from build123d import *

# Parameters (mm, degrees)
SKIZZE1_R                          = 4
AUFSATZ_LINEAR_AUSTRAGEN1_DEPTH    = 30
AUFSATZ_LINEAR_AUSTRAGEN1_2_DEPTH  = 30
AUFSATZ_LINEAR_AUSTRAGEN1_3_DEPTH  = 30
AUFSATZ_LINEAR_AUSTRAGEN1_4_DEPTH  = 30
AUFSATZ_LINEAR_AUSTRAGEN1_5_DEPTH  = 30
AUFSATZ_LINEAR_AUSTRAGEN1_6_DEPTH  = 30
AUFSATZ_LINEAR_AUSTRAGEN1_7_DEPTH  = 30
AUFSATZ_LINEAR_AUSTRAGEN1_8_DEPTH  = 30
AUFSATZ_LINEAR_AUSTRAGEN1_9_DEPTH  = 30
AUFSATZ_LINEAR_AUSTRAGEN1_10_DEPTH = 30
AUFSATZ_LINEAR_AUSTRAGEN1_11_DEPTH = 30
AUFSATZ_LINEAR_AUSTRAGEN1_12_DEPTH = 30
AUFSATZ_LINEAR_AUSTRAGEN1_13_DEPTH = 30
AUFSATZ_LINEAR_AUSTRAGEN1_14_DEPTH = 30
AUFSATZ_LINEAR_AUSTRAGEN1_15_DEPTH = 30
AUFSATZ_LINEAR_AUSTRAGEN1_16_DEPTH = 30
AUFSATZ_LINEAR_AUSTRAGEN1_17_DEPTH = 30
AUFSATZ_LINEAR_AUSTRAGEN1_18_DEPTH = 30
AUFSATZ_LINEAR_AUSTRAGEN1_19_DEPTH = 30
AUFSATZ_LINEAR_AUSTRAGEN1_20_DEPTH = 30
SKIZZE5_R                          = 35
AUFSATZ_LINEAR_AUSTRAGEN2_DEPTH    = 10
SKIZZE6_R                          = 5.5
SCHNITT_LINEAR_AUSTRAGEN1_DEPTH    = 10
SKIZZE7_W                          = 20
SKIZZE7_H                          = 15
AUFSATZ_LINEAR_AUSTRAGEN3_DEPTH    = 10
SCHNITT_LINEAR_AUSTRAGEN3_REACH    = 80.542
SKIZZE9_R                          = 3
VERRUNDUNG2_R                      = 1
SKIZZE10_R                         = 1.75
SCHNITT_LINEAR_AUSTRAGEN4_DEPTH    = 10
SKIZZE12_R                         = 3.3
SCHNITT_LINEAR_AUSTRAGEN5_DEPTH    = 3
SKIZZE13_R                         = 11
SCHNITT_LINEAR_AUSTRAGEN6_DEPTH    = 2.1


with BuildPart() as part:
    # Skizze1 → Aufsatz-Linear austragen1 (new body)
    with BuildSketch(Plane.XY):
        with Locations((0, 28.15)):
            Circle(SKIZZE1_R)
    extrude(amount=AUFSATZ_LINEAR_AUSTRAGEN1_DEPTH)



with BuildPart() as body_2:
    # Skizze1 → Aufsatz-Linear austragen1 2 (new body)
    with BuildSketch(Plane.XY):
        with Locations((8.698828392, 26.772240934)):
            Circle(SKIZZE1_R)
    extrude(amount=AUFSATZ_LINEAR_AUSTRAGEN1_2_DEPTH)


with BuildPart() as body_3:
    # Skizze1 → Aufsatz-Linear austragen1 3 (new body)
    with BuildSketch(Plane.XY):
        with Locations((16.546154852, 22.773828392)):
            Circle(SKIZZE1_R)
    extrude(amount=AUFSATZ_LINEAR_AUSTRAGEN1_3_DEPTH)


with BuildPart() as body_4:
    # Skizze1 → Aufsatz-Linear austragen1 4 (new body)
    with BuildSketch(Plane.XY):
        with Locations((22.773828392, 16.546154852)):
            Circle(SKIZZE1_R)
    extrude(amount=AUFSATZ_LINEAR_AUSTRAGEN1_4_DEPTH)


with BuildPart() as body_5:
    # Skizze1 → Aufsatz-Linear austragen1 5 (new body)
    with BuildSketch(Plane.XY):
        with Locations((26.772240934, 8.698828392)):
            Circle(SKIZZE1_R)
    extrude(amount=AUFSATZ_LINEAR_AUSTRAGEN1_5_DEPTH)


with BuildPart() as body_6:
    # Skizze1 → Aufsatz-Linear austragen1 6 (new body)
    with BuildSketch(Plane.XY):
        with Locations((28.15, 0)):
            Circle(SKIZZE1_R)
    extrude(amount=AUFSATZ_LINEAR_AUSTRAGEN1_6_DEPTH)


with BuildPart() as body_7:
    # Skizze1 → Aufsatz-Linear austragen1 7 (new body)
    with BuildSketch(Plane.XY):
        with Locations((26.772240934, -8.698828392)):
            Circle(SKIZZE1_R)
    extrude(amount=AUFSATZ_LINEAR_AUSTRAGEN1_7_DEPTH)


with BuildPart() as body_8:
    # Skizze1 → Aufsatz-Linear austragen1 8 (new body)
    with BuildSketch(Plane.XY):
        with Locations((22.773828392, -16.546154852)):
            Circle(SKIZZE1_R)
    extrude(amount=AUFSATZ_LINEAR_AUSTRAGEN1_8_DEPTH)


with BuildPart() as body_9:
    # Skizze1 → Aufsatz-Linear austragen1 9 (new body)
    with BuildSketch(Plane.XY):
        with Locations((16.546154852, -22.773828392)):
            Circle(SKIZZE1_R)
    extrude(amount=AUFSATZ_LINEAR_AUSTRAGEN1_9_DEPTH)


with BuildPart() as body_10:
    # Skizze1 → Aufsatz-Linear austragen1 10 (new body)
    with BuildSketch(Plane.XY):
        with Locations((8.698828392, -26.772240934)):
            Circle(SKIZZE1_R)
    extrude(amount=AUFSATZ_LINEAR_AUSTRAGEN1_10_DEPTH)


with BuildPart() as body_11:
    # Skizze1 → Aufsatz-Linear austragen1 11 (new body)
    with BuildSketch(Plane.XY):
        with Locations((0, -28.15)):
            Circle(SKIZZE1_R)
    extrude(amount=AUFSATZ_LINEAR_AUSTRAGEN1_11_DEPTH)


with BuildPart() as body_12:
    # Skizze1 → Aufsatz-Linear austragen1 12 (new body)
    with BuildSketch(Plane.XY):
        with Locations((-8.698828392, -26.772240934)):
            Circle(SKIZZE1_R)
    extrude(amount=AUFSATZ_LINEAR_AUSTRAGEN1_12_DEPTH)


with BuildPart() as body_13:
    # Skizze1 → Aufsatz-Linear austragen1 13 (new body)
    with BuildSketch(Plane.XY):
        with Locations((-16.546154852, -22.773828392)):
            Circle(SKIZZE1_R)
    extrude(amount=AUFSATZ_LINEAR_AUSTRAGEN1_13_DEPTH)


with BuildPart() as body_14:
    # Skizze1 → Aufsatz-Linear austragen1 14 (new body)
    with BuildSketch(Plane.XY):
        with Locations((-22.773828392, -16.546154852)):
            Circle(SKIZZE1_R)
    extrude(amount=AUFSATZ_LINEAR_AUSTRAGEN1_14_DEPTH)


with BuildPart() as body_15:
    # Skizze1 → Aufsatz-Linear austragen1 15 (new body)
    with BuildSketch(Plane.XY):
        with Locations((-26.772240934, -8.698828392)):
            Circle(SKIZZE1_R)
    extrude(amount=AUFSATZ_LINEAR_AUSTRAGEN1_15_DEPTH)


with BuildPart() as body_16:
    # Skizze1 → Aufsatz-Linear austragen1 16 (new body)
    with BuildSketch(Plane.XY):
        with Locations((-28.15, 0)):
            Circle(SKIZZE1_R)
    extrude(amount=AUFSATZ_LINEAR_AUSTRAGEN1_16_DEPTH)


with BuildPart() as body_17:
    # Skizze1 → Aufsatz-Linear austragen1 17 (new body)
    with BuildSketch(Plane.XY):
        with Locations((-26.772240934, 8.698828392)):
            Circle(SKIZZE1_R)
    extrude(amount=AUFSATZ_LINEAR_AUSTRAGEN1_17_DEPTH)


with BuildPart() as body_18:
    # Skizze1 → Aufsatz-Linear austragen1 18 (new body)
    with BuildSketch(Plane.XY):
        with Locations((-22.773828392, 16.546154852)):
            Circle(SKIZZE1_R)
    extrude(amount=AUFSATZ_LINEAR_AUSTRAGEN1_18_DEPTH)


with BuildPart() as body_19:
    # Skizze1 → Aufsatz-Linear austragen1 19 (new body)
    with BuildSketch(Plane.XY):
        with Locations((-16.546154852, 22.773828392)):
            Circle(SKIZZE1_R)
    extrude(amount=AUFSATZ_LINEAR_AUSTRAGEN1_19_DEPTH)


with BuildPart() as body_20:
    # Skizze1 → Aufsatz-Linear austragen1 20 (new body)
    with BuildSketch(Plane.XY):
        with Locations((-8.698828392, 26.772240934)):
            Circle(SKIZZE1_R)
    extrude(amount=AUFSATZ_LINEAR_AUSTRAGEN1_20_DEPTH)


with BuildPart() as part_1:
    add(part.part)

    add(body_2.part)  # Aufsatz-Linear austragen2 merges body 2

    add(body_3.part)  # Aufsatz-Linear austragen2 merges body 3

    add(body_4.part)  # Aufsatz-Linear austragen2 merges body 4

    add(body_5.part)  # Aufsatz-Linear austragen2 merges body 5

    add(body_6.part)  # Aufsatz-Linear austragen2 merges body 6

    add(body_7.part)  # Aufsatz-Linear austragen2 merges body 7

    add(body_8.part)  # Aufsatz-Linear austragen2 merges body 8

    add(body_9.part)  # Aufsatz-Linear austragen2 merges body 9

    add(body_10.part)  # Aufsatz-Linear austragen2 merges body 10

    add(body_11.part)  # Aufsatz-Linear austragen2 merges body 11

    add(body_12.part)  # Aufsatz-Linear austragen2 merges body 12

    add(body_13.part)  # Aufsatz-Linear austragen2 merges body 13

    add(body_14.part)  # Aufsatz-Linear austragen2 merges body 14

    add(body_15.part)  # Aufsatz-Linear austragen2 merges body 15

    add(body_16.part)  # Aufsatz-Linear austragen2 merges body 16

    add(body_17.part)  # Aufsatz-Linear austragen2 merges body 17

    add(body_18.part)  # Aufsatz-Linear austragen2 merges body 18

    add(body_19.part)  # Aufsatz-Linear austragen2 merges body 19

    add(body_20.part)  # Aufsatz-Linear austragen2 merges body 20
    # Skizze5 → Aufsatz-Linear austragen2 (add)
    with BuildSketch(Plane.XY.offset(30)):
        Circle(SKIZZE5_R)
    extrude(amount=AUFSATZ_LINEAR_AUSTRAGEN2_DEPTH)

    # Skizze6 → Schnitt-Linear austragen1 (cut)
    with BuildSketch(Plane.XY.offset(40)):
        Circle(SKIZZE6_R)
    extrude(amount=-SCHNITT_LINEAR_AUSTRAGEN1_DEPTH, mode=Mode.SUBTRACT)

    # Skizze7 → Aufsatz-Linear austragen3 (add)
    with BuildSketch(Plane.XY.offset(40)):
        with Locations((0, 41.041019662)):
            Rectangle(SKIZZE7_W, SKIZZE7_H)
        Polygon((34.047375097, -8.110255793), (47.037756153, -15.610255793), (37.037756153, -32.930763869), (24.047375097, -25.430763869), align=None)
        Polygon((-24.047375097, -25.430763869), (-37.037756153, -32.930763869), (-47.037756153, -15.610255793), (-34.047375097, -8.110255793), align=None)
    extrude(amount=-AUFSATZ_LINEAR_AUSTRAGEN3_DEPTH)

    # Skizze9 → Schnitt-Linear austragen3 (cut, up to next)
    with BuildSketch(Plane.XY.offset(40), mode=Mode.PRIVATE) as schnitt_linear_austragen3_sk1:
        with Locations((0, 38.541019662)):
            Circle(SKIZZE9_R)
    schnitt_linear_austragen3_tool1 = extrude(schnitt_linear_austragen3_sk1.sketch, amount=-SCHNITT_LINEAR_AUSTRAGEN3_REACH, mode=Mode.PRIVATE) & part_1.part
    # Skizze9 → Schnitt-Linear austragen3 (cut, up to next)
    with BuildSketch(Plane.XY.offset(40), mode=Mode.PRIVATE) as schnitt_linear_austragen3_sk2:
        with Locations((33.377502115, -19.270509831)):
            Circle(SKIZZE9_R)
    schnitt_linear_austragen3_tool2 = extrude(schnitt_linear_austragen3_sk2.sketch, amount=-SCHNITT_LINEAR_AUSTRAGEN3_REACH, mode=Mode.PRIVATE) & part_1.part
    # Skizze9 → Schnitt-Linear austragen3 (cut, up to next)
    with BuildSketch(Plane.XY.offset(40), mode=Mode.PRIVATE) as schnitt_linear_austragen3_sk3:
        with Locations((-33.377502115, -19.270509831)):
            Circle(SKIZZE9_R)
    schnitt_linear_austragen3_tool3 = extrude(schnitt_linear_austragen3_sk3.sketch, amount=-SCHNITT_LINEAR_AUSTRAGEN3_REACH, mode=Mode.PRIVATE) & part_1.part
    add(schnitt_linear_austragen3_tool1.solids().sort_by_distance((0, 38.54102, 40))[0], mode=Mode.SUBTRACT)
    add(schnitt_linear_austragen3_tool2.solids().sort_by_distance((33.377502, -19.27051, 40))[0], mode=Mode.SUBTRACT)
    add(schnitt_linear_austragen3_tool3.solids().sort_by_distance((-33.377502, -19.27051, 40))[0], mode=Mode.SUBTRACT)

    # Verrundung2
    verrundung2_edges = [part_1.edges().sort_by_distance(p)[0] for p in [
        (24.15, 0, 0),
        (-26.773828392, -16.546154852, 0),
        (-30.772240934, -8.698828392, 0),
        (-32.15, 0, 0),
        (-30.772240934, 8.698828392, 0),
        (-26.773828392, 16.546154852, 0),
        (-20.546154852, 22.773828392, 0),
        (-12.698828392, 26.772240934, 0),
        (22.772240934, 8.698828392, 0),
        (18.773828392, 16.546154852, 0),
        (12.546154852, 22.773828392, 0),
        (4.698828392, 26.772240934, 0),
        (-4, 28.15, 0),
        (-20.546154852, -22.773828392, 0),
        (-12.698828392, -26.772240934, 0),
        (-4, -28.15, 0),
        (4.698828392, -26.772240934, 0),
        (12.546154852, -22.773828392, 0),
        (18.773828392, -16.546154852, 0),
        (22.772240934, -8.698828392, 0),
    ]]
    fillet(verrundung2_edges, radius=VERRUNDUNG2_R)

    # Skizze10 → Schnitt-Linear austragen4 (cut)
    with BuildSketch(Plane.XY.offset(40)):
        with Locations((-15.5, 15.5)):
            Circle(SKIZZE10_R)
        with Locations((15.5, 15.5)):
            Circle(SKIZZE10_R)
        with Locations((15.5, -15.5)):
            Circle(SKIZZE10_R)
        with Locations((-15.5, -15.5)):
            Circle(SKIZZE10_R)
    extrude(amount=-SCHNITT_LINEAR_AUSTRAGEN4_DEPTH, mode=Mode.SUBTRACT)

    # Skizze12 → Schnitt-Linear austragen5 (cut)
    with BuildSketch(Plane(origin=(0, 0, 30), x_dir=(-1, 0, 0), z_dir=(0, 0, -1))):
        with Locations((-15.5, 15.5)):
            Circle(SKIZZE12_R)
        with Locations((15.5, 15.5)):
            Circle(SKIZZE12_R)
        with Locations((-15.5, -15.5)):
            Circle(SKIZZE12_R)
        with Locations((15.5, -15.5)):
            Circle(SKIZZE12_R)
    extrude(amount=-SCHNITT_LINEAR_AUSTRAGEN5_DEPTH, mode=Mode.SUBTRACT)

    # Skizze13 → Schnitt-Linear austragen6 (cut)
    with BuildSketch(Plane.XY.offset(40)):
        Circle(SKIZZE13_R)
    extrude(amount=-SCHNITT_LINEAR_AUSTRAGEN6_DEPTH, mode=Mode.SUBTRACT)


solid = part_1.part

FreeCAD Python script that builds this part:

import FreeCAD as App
import Part
import Sketcher

V = App.Vector
Q = App.Units.Quantity


def edges_at(feature, points):
    """Names of the edges that pass closest to the given points."""
    edges = feature.Shape.Edges
    near = lambda p: min(range(len(edges)), key=lambda i: edges[i].distToShape(Part.Vertex(*p))[0])
    return sorted({f"Edge{near(p) + 1}" for p in points})

doc = App.newDocument("Part")
params = doc.addObject("Spreadsheet::Sheet", "Params")
for row, (alias, value) in enumerate([
    ("sketch1_diameter", "8 mm"),
    ("pad1_length", "30 mm"),
    ("sketch2_diameter", "8 mm"),
    ("pad2_length", "30 mm"),
    ("sketch3_diameter", "8 mm"),
    ("pad3_length", "30 mm"),
    ("sketch4_diameter", "8 mm"),
    ("pad4_length", "30 mm"),
    ("sketch5_diameter", "8 mm"),
    ("pad5_length", "30 mm"),
    ("sketch6_diameter", "8 mm"),
    ("pad6_length", "30 mm"),
    ("sketch7_diameter", "8 mm"),
    ("pad7_length", "30 mm"),
    ("sketch8_diameter", "8 mm"),
    ("pad8_length", "30 mm"),
    ("sketch9_diameter", "8 mm"),
    ("pad9_length", "30 mm"),
    ("sketch10_diameter", "8 mm"),
    ("pad10_length", "30 mm"),
    ("sketch11_diameter", "8 mm"),
    ("pad11_length", "30 mm"),
    ("sketch12_diameter", "8 mm"),
    ("pad12_length", "30 mm"),
    ("sketch13_diameter", "8 mm"),
    ("pad13_length", "30 mm"),
    ("sketch14_diameter", "8 mm"),
    ("pad14_length", "30 mm"),
    ("sketch15_diameter", "8 mm"),
    ("pad15_length", "30 mm"),
    ("sketch16_diameter", "8 mm"),
    ("pad16_length", "30 mm"),
    ("sketch17_diameter", "8 mm"),
    ("pad17_length", "30 mm"),
    ("sketch18_diameter", "8 mm"),
    ("pad18_length", "30 mm"),
    ("sketch19_diameter", "8 mm"),
    ("pad19_length", "30 mm"),
    ("sketch20_diameter", "8 mm"),
    ("pad20_length", "30 mm"),
    ("sketch21_diameter", "70 mm"),
    ("pad21_length", "10 mm"),
    ("sketch22_diameter", "11 mm"),
    ("pocket1_length", "10 mm"),
    ("sketch23_width", "20 mm"),
    ("sketch23_height", "15 mm"),
    ("sketch23_length", "15 mm"),
    ("sketch23_length2", "20 mm"),
    ("pad22_length", "10 mm"),
    ("sketch24_diameter", "6 mm"),
    ("sketch25_diameter", "6 mm"),
    ("sketch26_diameter", "6 mm"),
    ("fillet_radius", "1 mm"),
    ("sketch27_diameter", "3.5 mm"),
    ("pocket5_length", "10 mm"),
    ("sketch28_diameter", "6.6 mm"),
    ("pocket6_length", "3 mm"),
    ("sketch29_diameter", "22 mm"),
    ("pocket7_length", "2.1 mm"),
], start=1):
    params.set(f"A{row}", alias)
    params.set(f"B{row}", "=" + value)
    params.setAlias(f"B{row}", alias)

body = doc.addObject("PartDesign::Body", "Body")

sketch1 = doc.addObject("Sketcher::SketchObject", "Sketch")
body.addObject(sketch1)
sketch1.AttachmentSupport = (doc.XY_Plane, [""])
sketch1.MapMode = "FlatFace"
sketch1.addGeometry(Part.Circle(V(0, 28.1, 0), V(0, 0, 1), 4), False)
sketch1.addConstraint([
    Sketcher.Constraint("PointOnObject", 0, 3, -2),
    Sketcher.Constraint("Diameter", 0, Q("8 mm")),
    Sketcher.Constraint("DistanceY", -1, 1, 0, 3, Q("28.15 mm")),
])
sketch1.setExpression("Constraints[1]", "Params.sketch1_diameter")
pad1 = doc.addObject("PartDesign::Pad", "Pad")
body.addObject(pad1)
pad1.Profile = sketch1
pad1.setExpression("Length", "Params.pad1_length")
body2 = doc.addObject("PartDesign::Body", "Body001")

sketch2 = doc.addObject("Sketcher::SketchObject", "Sketch001")
body2.addObject(sketch2)
sketch2.AttachmentSupport = (doc.getObject("XY_Plane001"), [""])
sketch2.MapMode = "FlatFace"
sketch2.addGeometry(Part.Circle(V(8.7, 26.8, 0), V(0, 0, 1), 4), False)
sketch2.addConstraint([
    Sketcher.Constraint("Diameter", 0, Q("8 mm")),
    Sketcher.Constraint("DistanceX", -1, 1, 0, 3, Q("8.698828 mm")),
    Sketcher.Constraint("DistanceY", -1, 1, 0, 3, Q("26.772241 mm")),
])
sketch2.setExpression("Constraints[0]", "Params.sketch2_diameter")
pad2 = doc.addObject("PartDesign::Pad", "Pad001")
body2.addObject(pad2)
pad2.Profile = sketch2
pad2.setExpression("Length", "Params.pad2_length")
body3 = doc.addObject("PartDesign::Body", "Body002")

sketch3 = doc.addObject("Sketcher::SketchObject", "Sketch002")
body3.addObject(sketch3)
sketch3.AttachmentSupport = (doc.getObject("XY_Plane002"), [""])
sketch3.MapMode = "FlatFace"
sketch3.addGeometry(Part.Circle(V(16.5, 22.8, 0), V(0, 0, 1), 4), False)
sketch3.addConstraint([
    Sketcher.Constraint("Diameter", 0, Q("8 mm")),
    Sketcher.Constraint("DistanceY", -1, 1, 0, 3, Q("22.773828 mm")),
    Sketcher.Constraint("DistanceX", -1, 1, 0, 3, Q("16.546155 mm")),
])
sketch3.setExpression("Constraints[0]", "Params.sketch3_diameter")
pad3 = doc.addObject("PartDesign::Pad", "Pad002")
body3.addObject(pad3)
pad3.Profile = sketch3
pad3.setExpression("Length", "Params.pad3_length")
body4 = doc.addObject("PartDesign::Body", "Body003")

sketch4 = doc.addObject("Sketcher::SketchObject", "Sketch003")
body4.addObject(sketch4)
sketch4.AttachmentSupport = (doc.getObject("XY_Plane003"), [""])
sketch4.MapMode = "FlatFace"
sketch4.addGeometry(Part.Circle(V(22.8, 16.5, 0), V(0, 0, 1), 4), False)
sketch4.addConstraint([
    Sketcher.Constraint("Diameter", 0, Q("8 mm")),
    Sketcher.Constraint("DistanceX", -1, 1, 0, 3, Q("22.773828 mm")),
    Sketcher.Constraint("DistanceY", -1, 1, 0, 3, Q("16.546155 mm")),
])
sketch4.setExpression("Constraints[0]", "Params.sketch4_diameter")
pad4 = doc.addObject("PartDesign::Pad", "Pad003")
body4.addObject(pad4)
pad4.Profile = sketch4
pad4.setExpression("Length", "Params.pad4_length")
body5 = doc.addObject("PartDesign::Body", "Body004")

sketch5 = doc.addObject("Sketcher::SketchObject", "Sketch004")
body5.addObject(sketch5)
sketch5.AttachmentSupport = (doc.getObject("XY_Plane004"), [""])
sketch5.MapMode = "FlatFace"
sketch5.addGeometry(Part.Circle(V(26.8, 8.7, 0), V(0, 0, 1), 4), False)
sketch5.addConstraint([
    Sketcher.Constraint("Diameter", 0, Q("8 mm")),
    Sketcher.Constraint("DistanceX", -1, 1, 0, 3, Q("26.772241 mm")),
    Sketcher.Constraint("DistanceY", -1, 1, 0, 3, Q("8.698828 mm")),
])
sketch5.setExpression("Constraints[0]", "Params.sketch5_diameter")
pad5 = doc.addObject("PartDesign::Pad", "Pad004")
body5.addObject(pad5)
pad5.Profile = sketch5
pad5.setExpression("Length", "Params.pad5_length")
body6 = doc.addObject("PartDesign::Body", "Body005")

sketch6 = doc.addObject("Sketcher::SketchObject", "Sketch005")
body6.addObject(sketch6)
sketch6.AttachmentSupport = (doc.getObject("XY_Plane005"), [""])
sketch6.MapMode = "FlatFace"
sketch6.addGeometry(Part.Circle(V(28.1, 0, 0), V(0, 0, 1), 4), False)
sketch6.addConstraint([
    Sketcher.Constraint("PointOnObject", 0, 3, -1),
    Sketcher.Constraint("Diameter", 0, Q("8 mm")),
    Sketcher.Constraint("DistanceX", -1, 1, 0, 3, Q("28.15 mm")),
])
sketch6.setExpression("Constraints[1]", "Params.sketch6_diameter")
pad6 = doc.addObject("PartDesign::Pad", "Pad005")
body6.addObject(pad6)
pad6.Profile = sketch6
pad6.setExpression("Length", "Params.pad6_length")
body7 = doc.addObject("PartDesign::Body", "Body006")

sketch7 = doc.addObject("Sketcher::SketchObject", "Sketch006")
body7.addObject(sketch7)
sketch7.AttachmentSupport = (doc.getObject("XY_Plane006"), [""])
sketch7.MapMode = "FlatFace"
sketch7.addGeometry(Part.Circle(V(26.8, -8.7, 0), V(0, 0, 1), 4), False)
sketch7.addConstraint([
    Sketcher.Constraint("Diameter", 0, Q("8 mm")),
    Sketcher.Constraint("DistanceX", -1, 1, 0, 3, Q("26.772241 mm")),
    Sketcher.Constraint("DistanceY", 0, 3, -1, 1, Q("8.698828 mm")),
])
sketch7.setExpression("Constraints[0]", "Params.sketch7_diameter")
pad7 = doc.addObject("PartDesign::Pad", "Pad006")
body7.addObject(pad7)
pad7.Profile = sketch7
pad7.setExpression("Length", "Params.pad7_length")
body8 = doc.addObject("PartDesign::Body", "Body007")

sketch8 = doc.addObject("Sketcher::SketchObject", "Sketch007")
body8.addObject(sketch8)
sketch8.AttachmentSupport = (doc.getObject("XY_Plane007"), [""])
sketch8.MapMode = "FlatFace"
sketch8.addGeometry(Part.Circle(V(22.8, -16.5, 0), V(0, 0, 1), 4), False)
sketch8.addConstraint([
    Sketcher.Constraint("Diameter", 0, Q("8 mm")),
    Sketcher.Constraint("DistanceX", -1, 1, 0, 3, Q("22.773828 mm")),
    Sketcher.Constraint("DistanceY", 0, 3, -1, 1, Q("16.546155 mm")),
])
sketch8.setExpression("Constraints[0]", "Params.sketch8_diameter")
pad8 = doc.addObject("PartDesign::Pad", "Pad007")
body8.addObject(pad8)
pad8.Profile = sketch8
pad8.setExpression("Length", "Params.pad8_length")
body9 = doc.addObject("PartDesign::Body", "Body008")

sketch9 = doc.addObject("Sketcher::SketchObject", "Sketch008")
body9.addObject(sketch9)
sketch9.AttachmentSupport = (doc.getObject("XY_Plane008"), [""])
sketch9.MapMode = "FlatFace"
sketch9.addGeometry(Part.Circle(V(16.5, -22.8, 0), V(0, 0, 1), 4), False)
sketch9.addConstraint([
    Sketcher.Constraint("Diameter", 0, Q("8 mm")),
    Sketcher.Constraint("DistanceY", 0, 3, -1, 1, Q("22.773828 mm")),
    Sketcher.Constraint("DistanceX", -1, 1, 0, 3, Q("16.546155 mm")),
])
sketch9.setExpression("Constraints[0]", "Params.sketch9_diameter")
pad9 = doc.addObject("PartDesign::Pad", "Pad008")
body9.addObject(pad9)
pad9.Profile = sketch9
pad9.setExpression("Length", "Params.pad9_length")
body10 = doc.addObject("PartDesign::Body", "Body009")

sketch10 = doc.addObject("Sketcher::SketchObject", "Sketch009")
body10.addObject(sketch10)
sketch10.AttachmentSupport = (doc.getObject("XY_Plane009"), [""])
sketch10.MapMode = "FlatFace"
sketch10.addGeometry(Part.Circle(V(8.7, -26.8, 0), V(0, 0, 1), 4), False)
sketch10.addConstraint([
    Sketcher.Constraint("Diameter", 0, Q("8 mm")),
    Sketcher.Constraint("DistanceX", -1, 1, 0, 3, Q("8.698828 mm")),
    Sketcher.Constraint("DistanceY", 0, 3, -1, 1, Q("26.772241 mm")),
])
sketch10.setExpression("Constraints[0]", "Params.sketch10_diameter")
pad10 = doc.addObject("PartDesign::Pad", "Pad009")
body10.addObject(pad10)
pad10.Profile = sketch10
pad10.setExpression("Length", "Params.pad10_length")
body11 = doc.addObject("PartDesign::Body", "Body010")

sketch11 = doc.addObject("Sketcher::SketchObject", "Sketch010")
body11.addObject(sketch11)
sketch11.AttachmentSupport = (doc.getObject("XY_Plane010"), [""])
sketch11.MapMode = "FlatFace"
sketch11.addGeometry(Part.Circle(V(0, -28.1, 0), V(0, 0, 1), 4), False)
sketch11.addConstraint([
    Sketcher.Constraint("PointOnObject", 0, 3, -2),
    Sketcher.Constraint("Diameter", 0, Q("8 mm")),
    Sketcher.Constraint("DistanceY", 0, 3, -1, 1, Q("28.15 mm")),
])
sketch11.setExpression("Constraints[1]", "Params.sketch11_diameter")
pad11 = doc.addObject("PartDesign::Pad", "Pad010")
body11.addObject(pad11)
pad11.Profile = sketch11
pad11.setExpression("Length", "Params.pad11_length")
body12 = doc.addObject("PartDesign::Body", "Body011")

sketch12 = doc.addObject("Sketcher::SketchObject", "Sketch011")
body12.addObject(sketch12)
sketch12.AttachmentSupport = (doc.getObject("XY_Plane011"), [""])
sketch12.MapMode = "FlatFace"
sketch12.addGeometry(Part.Circle(V(-8.7, -26.8, 0), V(0, 0, 1), 4), False)
sketch12.addConstraint([
    Sketcher.Constraint("Diameter", 0, Q("8 mm")),
    Sketcher.Constraint("DistanceX", 0, 3, -1, 1, Q("8.698828 mm")),
    Sketcher.Constraint("DistanceY", 0, 3, -1, 1, Q("26.772241 mm")),
])
sketch12.setExpression("Constraints[0]", "Params.sketch12_diameter")
pad12 = doc.addObject("PartDesign::Pad", "Pad011")
body12.addObject(pad12)
pad12.Profile = sketch12
pad12.setExpression("Length", "Params.pad12_length")
body13 = doc.addObject("PartDesign::Body", "Body012")

sketch13 = doc.addObject("Sketcher::SketchObject", "Sketch012")
body13.addObject(sketch13)
sketch13.AttachmentSupport = (doc.getObject("XY_Plane012"), [""])
sketch13.MapMode = "FlatFace"
sketch13.addGeometry(Part.Circle(V(-16.5, -22.8, 0), V(0, 0, 1), 4), False)
sketch13.addConstraint([
    Sketcher.Constraint("Diameter", 0, Q("8 mm")),
    Sketcher.Constraint("DistanceY", 0, 3, -1, 1, Q("22.773828 mm")),
    Sketcher.Constraint("DistanceX", 0, 3, -1, 1, Q("16.546155 mm")),
])
sketch13.setExpression("Constraints[0]", "Params.sketch13_diameter")
pad13 = doc.addObject("PartDesign::Pad", "Pad012")
body13.addObject(pad13)
pad13.Profile = sketch13
pad13.setExpression("Length", "Params.pad13_length")
body14 = doc.addObject("PartDesign::Body", "Body013")

sketch14 = doc.addObject("Sketcher::SketchObject", "Sketch013")
body14.addObject(sketch14)
sketch14.AttachmentSupport = (doc.getObject("XY_Plane013"), [""])
sketch14.MapMode = "FlatFace"
sketch14.addGeometry(Part.Circle(V(-22.8, -16.5, 0), V(0, 0, 1), 4), False)
sketch14.addConstraint([
    Sketcher.Constraint("Diameter", 0, Q("8 mm")),
    Sketcher.Constraint("DistanceX", 0, 3, -1, 1, Q("22.773828 mm")),
    Sketcher.Constraint("DistanceY", 0, 3, -1, 1, Q("16.546155 mm")),
])
sketch14.setExpression("Constraints[0]", "Params.sketch14_diameter")
pad14 = doc.addObject("PartDesign::Pad", "Pad013")
body14.addObject(pad14)
pad14.Profile = sketch14
pad14.setExpression("Length", "Params.pad14_length")
body15 = doc.addObject("PartDesign::Body", "Body014")

sketch15 = doc.addObject("Sketcher::SketchObject", "Sketch014")
body15.addObject(sketch15)
sketch15.AttachmentSupport = (doc.getObject("XY_Plane014"), [""])
sketch15.MapMode = "FlatFace"
sketch15.addGeometry(Part.Circle(V(-26.8, -8.7, 0), V(0, 0, 1), 4), False)
sketch15.addConstraint([
    Sketcher.Constraint("Diameter", 0, Q("8 mm")),
    Sketcher.Constraint("DistanceX", 0, 3, -1, 1, Q("26.772241 mm")),
    Sketcher.Constraint("DistanceY", 0, 3, -1, 1, Q("8.698828 mm")),
])
sketch15.setExpression("Constraints[0]", "Params.sketch15_diameter")
pad15 = doc.addObject("PartDesign::Pad", "Pad014")
body15.addObject(pad15)
pad15.Profile = sketch15
pad15.setExpression("Length", "Params.pad15_length")
body16 = doc.addObject("PartDesign::Body", "Body015")

sketch16 = doc.addObject("Sketcher::SketchObject", "Sketch015")
body16.addObject(sketch16)
sketch16.AttachmentSupport = (doc.getObject("XY_Plane015"), [""])
sketch16.MapMode = "FlatFace"
sketch16.addGeometry(Part.Circle(V(-28.1, 0, 0), V(0, 0, 1), 4), False)
sketch16.addConstraint([
    Sketcher.Constraint("PointOnObject", 0, 3, -1),
    Sketcher.Constraint("Diameter", 0, Q("8 mm")),
    Sketcher.Constraint("DistanceX", 0, 3, -1, 1, Q("28.15 mm")),
])
sketch16.setExpression("Constraints[1]", "Params.sketch16_diameter")
pad16 = doc.addObject("PartDesign::Pad", "Pad015")
body16.addObject(pad16)
pad16.Profile = sketch16
pad16.setExpression("Length", "Params.pad16_length")
body17 = doc.addObject("PartDesign::Body", "Body016")

sketch17 = doc.addObject("Sketcher::SketchObject", "Sketch016")
body17.addObject(sketch17)
sketch17.AttachmentSupport = (doc.getObject("XY_Plane016"), [""])
sketch17.MapMode = "FlatFace"
sketch17.addGeometry(Part.Circle(V(-26.8, 8.7, 0), V(0, 0, 1), 4), False)
sketch17.addConstraint([
    Sketcher.Constraint("Diameter", 0, Q("8 mm")),
    Sketcher.Constraint("DistanceX", 0, 3, -1, 1, Q("26.772241 mm")),
    Sketcher.Constraint("DistanceY", -1, 1, 0, 3, Q("8.698828 mm")),
])
sketch17.setExpression("Constraints[0]", "Params.sketch17_diameter")
pad17 = doc.addObject("PartDesign::Pad", "Pad016")
body17.addObject(pad17)
pad17.Profile = sketch17
pad17.setExpression("Length", "Params.pad17_length")
body18 = doc.addObject("PartDesign::Body", "Body017")

sketch18 = doc.addObject("Sketcher::SketchObject", "Sketch017")
body18.addObject(sketch18)
sketch18.AttachmentSupport = (doc.getObject("XY_Plane017"), [""])
sketch18.MapMode = "FlatFace"
sketch18.addGeometry(Part.Circle(V(-22.8, 16.5, 0), V(0, 0, 1), 4), False)
sketch18.addConstraint([
    Sketcher.Constraint("Diameter", 0, Q("8 mm")),
    Sketcher.Constraint("DistanceX", 0, 3, -1, 1, Q("22.773828 mm")),
    Sketcher.Constraint("DistanceY", -1, 1, 0, 3, Q("16.546155 mm")),
])
sketch18.setExpression("Constraints[0]", "Params.sketch18_diameter")
pad18 = doc.addObject("PartDesign::Pad", "Pad017")
body18.addObject(pad18)
pad18.Profile = sketch18
pad18.setExpression("Length", "Params.pad18_length")
body19 = doc.addObject("PartDesign::Body", "Body018")

sketch19 = doc.addObject("Sketcher::SketchObject", "Sketch018")
body19.addObject(sketch19)
sketch19.AttachmentSupport = (doc.getObject("XY_Plane018"), [""])
sketch19.MapMode = "FlatFace"
sketch19.addGeometry(Part.Circle(V(-16.5, 22.8, 0), V(0, 0, 1), 4), False)
sketch19.addConstraint([
    Sketcher.Constraint("Diameter", 0, Q("8 mm")),
    Sketcher.Constraint("DistanceY", -1, 1, 0, 3, Q("22.773828 mm")),
    Sketcher.Constraint("DistanceX", 0, 3, -1, 1, Q("16.546155 mm")),
])
sketch19.setExpression("Constraints[0]", "Params.sketch19_diameter")
pad19 = doc.addObject("PartDesign::Pad", "Pad018")
body19.addObject(pad19)
pad19.Profile = sketch19
pad19.setExpression("Length", "Params.pad19_length")
body20 = doc.addObject("PartDesign::Body", "Body019")

sketch20 = doc.addObject("Sketcher::SketchObject", "Sketch019")
body20.addObject(sketch20)
sketch20.AttachmentSupport = (doc.getObject("XY_Plane019"), [""])
sketch20.MapMode = "FlatFace"
sketch20.addGeometry(Part.Circle(V(-8.7, 26.8, 0), V(0, 0, 1), 4), False)
sketch20.addConstraint([
    Sketcher.Constraint("Diameter", 0, Q("8 mm")),
    Sketcher.Constraint("DistanceX", 0, 3, -1, 1, Q("8.698828 mm")),
    Sketcher.Constraint("DistanceY", -1, 1, 0, 3, Q("26.772241 mm")),
])
sketch20.setExpression("Constraints[0]", "Params.sketch20_diameter")
pad20 = doc.addObject("PartDesign::Pad", "Pad019")
body20.addObject(pad20)
pad20.Profile = sketch20
pad20.setExpression("Length", "Params.pad20_length")
body.AllowCompound = True
doc.recompute()

boolean = doc.addObject("PartDesign::Boolean", "Boolean")
body.addObject(boolean)
boolean.Type = "Fuse"
boolean.addObjects([body2])
doc.recompute()

boolean2 = doc.addObject("PartDesign::Boolean", "Boolean001")
body.addObject(boolean2)
boolean2.Type = "Fuse"
boolean2.addObjects([body3])
doc.recompute()

boolean3 = doc.addObject("PartDesign::Boolean", "Boolean002")
body.addObject(boolean3)
boolean3.Type = "Fuse"
boolean3.addObjects([body4])
doc.recompute()

boolean4 = doc.addObject("PartDesign::Boolean", "Boolean003")
body.addObject(boolean4)
boolean4.Type = "Fuse"
boolean4.addObjects([body5])
doc.recompute()

boolean5 = doc.addObject("PartDesign::Boolean", "Boolean004")
body.addObject(boolean5)
boolean5.Type = "Fuse"
boolean5.addObjects([body6])
doc.recompute()

boolean6 = doc.addObject("PartDesign::Boolean", "Boolean005")
body.addObject(boolean6)
boolean6.Type = "Fuse"
boolean6.addObjects([body7])
doc.recompute()

boolean7 = doc.addObject("PartDesign::Boolean", "Boolean006")
body.addObject(boolean7)
boolean7.Type = "Fuse"
boolean7.addObjects([body8])
doc.recompute()

boolean8 = doc.addObject("PartDesign::Boolean", "Boolean007")
body.addObject(boolean8)
boolean8.Type = "Fuse"
boolean8.addObjects([body9])
doc.recompute()

boolean9 = doc.addObject("PartDesign::Boolean", "Boolean008")
body.addObject(boolean9)
boolean9.Type = "Fuse"
boolean9.addObjects([body10])
doc.recompute()

boolean10 = doc.addObject("PartDesign::Boolean", "Boolean009")
body.addObject(boolean10)
boolean10.Type = "Fuse"
boolean10.addObjects([body11])
doc.recompute()

boolean11 = doc.addObject("PartDesign::Boolean", "Boolean010")
body.addObject(boolean11)
boolean11.Type = "Fuse"
boolean11.addObjects([body12])
doc.recompute()

boolean12 = doc.addObject("PartDesign::Boolean", "Boolean011")
body.addObject(boolean12)
boolean12.Type = "Fuse"
boolean12.addObjects([body13])
doc.recompute()

boolean13 = doc.addObject("PartDesign::Boolean", "Boolean012")
body.addObject(boolean13)
boolean13.Type = "Fuse"
boolean13.addObjects([body14])
doc.recompute()

boolean14 = doc.addObject("PartDesign::Boolean", "Boolean013")
body.addObject(boolean14)
boolean14.Type = "Fuse"
boolean14.addObjects([body15])
doc.recompute()

boolean15 = doc.addObject("PartDesign::Boolean", "Boolean014")
body.addObject(boolean15)
boolean15.Type = "Fuse"
boolean15.addObjects([body16])
doc.recompute()

boolean16 = doc.addObject("PartDesign::Boolean", "Boolean015")
body.addObject(boolean16)
boolean16.Type = "Fuse"
boolean16.addObjects([body17])
doc.recompute()

boolean17 = doc.addObject("PartDesign::Boolean", "Boolean016")
body.addObject(boolean17)
boolean17.Type = "Fuse"
boolean17.addObjects([body18])
doc.recompute()

boolean18 = doc.addObject("PartDesign::Boolean", "Boolean017")
body.addObject(boolean18)
boolean18.Type = "Fuse"
boolean18.addObjects([body19])
doc.recompute()

boolean19 = doc.addObject("PartDesign::Boolean", "Boolean018")
body.addObject(boolean19)
boolean19.Type = "Fuse"
boolean19.addObjects([body20])

sketch21 = doc.addObject("Sketcher::SketchObject", "Sketch020")
body.addObject(sketch21)
sketch21.AttachmentSupport = (doc.XY_Plane, [""])
sketch21.MapMode = "FlatFace"
sketch21.AttachmentOffset = App.Placement(V(0, 0, 30), App.Rotation())
sketch21.addGeometry(Part.Circle(V(0, 0, 0), V(0, 0, 1), 35), False)
sketch21.addConstraint([
    Sketcher.Constraint("Coincident", 0, 3, -1, 1),
    Sketcher.Constraint("Diameter", 0, Q("70 mm")),
])
sketch21.setExpression("Constraints[1]", "Params.sketch21_diameter")
pad21 = doc.addObject("PartDesign::Pad", "Pad020")
body.addObject(pad21)
pad21.Profile = sketch21
pad21.setExpression("Length", "Params.pad21_length")

sketch22 = doc.addObject("Sketcher::SketchObject", "Sketch021")
body.addObject(sketch22)
sketch22.AttachmentSupport = (doc.XY_Plane, [""])
sketch22.MapMode = "FlatFace"
sketch22.AttachmentOffset = App.Placement(V(0, 0, 40), App.Rotation())
sketch22.addGeometry(Part.Circle(V(0, 0, 0), V(0, 0, 1), 6), False)
sketch22.addConstraint([
    Sketcher.Constraint("Coincident", 0, 3, -1, 1),
    Sketcher.Constraint("Diameter", 0, Q("11 mm")),
])
sketch22.setExpression("Constraints[1]", "Params.sketch22_diameter")
pocket1 = doc.addObject("PartDesign::Pocket", "Pocket")
body.addObject(pocket1)
pocket1.Profile = sketch22
pocket1.setExpression("Length", "Params.pocket1_length")

sketch23 = doc.addObject("Sketcher::SketchObject", "Sketch022")
body.addObject(sketch23)
sketch23.AttachmentSupport = (doc.XY_Plane, [""])
sketch23.MapMode = "FlatFace"
sketch23.AttachmentOffset = App.Placement(V(0, 0, 40), App.Rotation())
sketch23.addGeometry([
    Part.LineSegment(V(-10, 49, 0), V(-10, 34, 0)),
    Part.LineSegment(V(-10, 34, 0), V(10, 34, 0)),
    Part.LineSegment(V(10, 34, 0), V(10, 49, 0)),
    Part.LineSegment(V(10, 49, 0), V(-10, 49, 0)),
    Part.LineSegment(V(47, -16, 0), V(34, -8, 0)),
    Part.LineSegment(V(34, -8, 0), V(24, -25, 0)),
    Part.LineSegment(V(24, -25, 0), V(37, -33, 0)),
    Part.LineSegment(V(37, -33, 0), V(47, -16, 0)),
    Part.LineSegment(V(-37, -33, 0), V(-24, -25, 0)),
    Part.LineSegment(V(-24, -25, 0), V(-34, -8, 0)),
    Part.LineSegment(V(-34, -8, 0), V(-47, -16, 0)),
    Part.LineSegment(V(-47, -16, 0), V(-37, -33, 0)),
], False)
sketch23.addConstraint([
    Sketcher.Constraint("Coincident", 0, 2, 1, 1),
    Sketcher.Constraint("Coincident", 1, 2, 2, 1),
    Sketcher.Constraint("Coincident", 2, 2, 3, 1),
    Sketcher.Constraint("Coincident", 3, 2, 0, 1),
    Sketcher.Constraint("Coincident", 4, 2, 5, 1),
    Sketcher.Constraint("Coincident", 5, 2, 6, 1),
    Sketcher.Constraint("Coincident", 6, 2, 7, 1),
    Sketcher.Constraint("Coincident", 7, 2, 4, 1),
    Sketcher.Constraint("Coincident", 8, 2, 9, 1),
    Sketcher.Constraint("Coincident", 9, 2, 10, 1),
    Sketcher.Constraint("Coincident", 10, 2, 11, 1),
    Sketcher.Constraint("Coincident", 11, 2, 8, 1),
    Sketcher.Constraint("Vertical", 0),
    Sketcher.Constraint("Horizontal", 1),
    Sketcher.Constraint("Vertical", 2),
    Sketcher.Constraint("Horizontal", 3),
    Sketcher.Constraint("Symmetric", 5, 2, 8, 2, -2),
    Sketcher.Constraint("Symmetric", 4, 2, 9, 2, -2),
    Sketcher.Constraint("Symmetric", 7, 2, 10, 2, -2),
    Sketcher.Constraint("Symmetric", 6, 2, 11, 2, -2),
    Sketcher.Constraint("Perpendicular", 4, 5),
    Sketcher.Constraint("Perpendicular", 5, 6),
    Sketcher.Constraint("Perpendicular", 6, 7),
    Sketcher.Constraint("DistanceX", 1, 1, 1, 2, Q("20 mm")),
    Sketcher.Constraint("DistanceY", 0, 2, 0, 1, Q("15 mm")),
    Sketcher.Constraint("Angle", 4, Q("150 deg")),
    Sketcher.Constraint("Distance", 4, Q("15 mm")),
    Sketcher.Constraint("Distance", 5, Q("20 mm")),
    Sketcher.Constraint("DistanceX", 0, 2, -1, 1, Q("10 mm")),
    Sketcher.Constraint("DistanceY", -1, 1, 0, 2, Q("33.54102 mm")),
    Sketcher.Constraint("DistanceX", 8, 2, 5, 2, Q("48.09475 mm")),
    Sketcher.Constraint("DistanceY", 4, 2, -1, 1, Q("8.110256 mm")),
])
sketch23.setExpression("Constraints[23]", "Params.sketch23_width")
sketch23.setExpression("Constraints[24]", "Params.sketch23_height")
sketch23.setExpression("Constraints[26]", "Params.sketch23_length")
sketch23.setExpression("Constraints[27]", "Params.sketch23_length2")
pad22 = doc.addObject("PartDesign::Pad", "Pad021")
body.addObject(pad22)
pad22.Profile = sketch23
pad22.setExpression("Length", "Params.pad22_length")
pad22.Reversed = True

sketch24 = doc.addObject("Sketcher::SketchObject", "Sketch023")
body.addObject(sketch24)
sketch24.AttachmentSupport = (doc.XY_Plane, [""])
sketch24.MapMode = "FlatFace"
sketch24.AttachmentOffset = App.Placement(V(0, 0, 40), App.Rotation())
sketch24.addGeometry(Part.Circle(V(0, 38.5, 0), V(0, 0, 1), 3), False)
sketch24.addConstraint([
    Sketcher.Constraint("PointOnObject", 0, 3, -2),
    Sketcher.Constraint("Diameter", 0, Q("6 mm")),
    Sketcher.Constraint("DistanceY", -1, 1, 0, 3, Q("38.54102 mm")),
])
sketch24.setExpression("Constraints[1]", "Params.sketch24_diameter")
pocket2 = doc.addObject("PartDesign::Pocket", "Pocket001")
body.addObject(pocket2)
pocket2.Profile = sketch24
pocket2.Type = "UpToFirst"

sketch25 = doc.addObject("Sketcher::SketchObject", "Sketch024")
body.addObject(sketch25)
sketch25.AttachmentSupport = (doc.XY_Plane, [""])
sketch25.MapMode = "FlatFace"
sketch25.AttachmentOffset = App.Placement(V(0, 0, 40), App.Rotation())
sketch25.addGeometry(Part.Circle(V(33.4, -19.3, 0), V(0, 0, 1), 3), False)
sketch25.addConstraint([
    Sketcher.Constraint("Diameter", 0, Q("6 mm")),
    Sketcher.Constraint("DistanceY", 0, 3, -1, 1, Q("19.27051 mm")),
    Sketcher.Constraint("DistanceX", -1, 1, 0, 3, Q("33.377502 mm")),
])
sketch25.setExpression("Constraints[0]", "Params.sketch25_diameter")
pocket3 = doc.addObject("PartDesign::Pocket", "Pocket002")
body.addObject(pocket3)
pocket3.Profile = sketch25
pocket3.Type = "UpToFirst"

sketch26 = doc.addObject("Sketcher::SketchObject", "Sketch025")
body.addObject(sketch26)
sketch26.AttachmentSupport = (doc.XY_Plane, [""])
sketch26.MapMode = "FlatFace"
sketch26.AttachmentOffset = App.Placement(V(0, 0, 40), App.Rotation())
sketch26.addGeometry(Part.Circle(V(-33.4, -19.3, 0), V(0, 0, 1), 3), False)
sketch26.addConstraint([
    Sketcher.Constraint("Diameter", 0, Q("6 mm")),
    Sketcher.Constraint("DistanceY", 0, 3, -1, 1, Q("19.27051 mm")),
    Sketcher.Constraint("DistanceX", 0, 3, -1, 1, Q("33.377502 mm")),
])
sketch26.setExpression("Constraints[0]", "Params.sketch26_diameter")
pocket4 = doc.addObject("PartDesign::Pocket", "Pocket003")
body.addObject(pocket4)
pocket4.Profile = sketch26
pocket4.Type = "UpToFirst"
doc.recompute()

fillet = doc.addObject("PartDesign::Fillet", "Fillet")
body.addObject(fillet)
fillet.Base = (pocket4, edges_at(pocket4, [
    (24.15, 0, 0),
    (-26.774, -16.546, 0),
    (-30.772, -8.699, 0),
    (-32.15, 0, 0),
    (-30.772, 8.699, 0),
    (-26.774, 16.546, 0),
    (-20.546, 22.774, 0),
    (-12.699, 26.772, 0),
    (22.772, 8.699, 0),
    (18.774, 16.546, 0),
    (12.546, 22.774, 0),
    (4.699, 26.772, 0),
    (-4, 28.15, 0),
    (-20.546, -22.774, 0),
    (-12.699, -26.772, 0),
    (-4, -28.15, 0),
    (4.699, -26.772, 0),
    (12.546, -22.774, 0),
    (18.774, -16.546, 0),
    (22.772, -8.699, 0),
]))
fillet.setExpression("Radius", "Params.fillet_radius")

sketch27 = doc.addObject("Sketcher::SketchObject", "Sketch026")
body.addObject(sketch27)
sketch27.AttachmentSupport = (doc.XY_Plane, [""])
sketch27.MapMode = "FlatFace"
sketch27.AttachmentOffset = App.Placement(V(0, 0, 40), App.Rotation())
sketch27.addGeometry([
    Part.Circle(V(-15.5, 15.5, 0), V(0, 0, 1), 1.8),
    Part.Circle(V(15.5, 15.5, 0), V(0, 0, 1), 1.8),
    Part.Circle(V(15.5, -15.5, 0), V(0, 0, 1), 1.8),
    Part.Circle(V(-15.5, -15.5, 0), V(0, 0, 1), 1.8),
], False)
sketch27.addConstraint([
    Sketcher.Constraint("Equal", 0, 1),
    Sketcher.Constraint("Equal", 1, 2),
    Sketcher.Constraint("Equal", 2, 3),
    Sketcher.Constraint("Symmetric", 0, 3, 2, 3, -1, 1),
    Sketcher.Constraint("Symmetric", 1, 3, 3, 3, -1, 1),
    Sketcher.Constraint("Symmetric", 0, 3, 1, 3, -2),
    Sketcher.Constraint("Diameter", 0, Q("3.5 mm")),
    Sketcher.Constraint("DistanceX", 0, 3, 1, 3, Q("31 mm")),
    Sketcher.Constraint("DistanceY", 2, 3, 1, 3, Q("31 mm")),
])
sketch27.setExpression("Constraints[6]", "Params.sketch27_diameter")
pocket5 = doc.addObject("PartDesign::Pocket", "Pocket004")
body.addObject(pocket5)
pocket5.Profile = sketch27
pocket5.setExpression("Length", "Params.pocket5_length")

sketch28 = doc.addObject("Sketcher::SketchObject", "Sketch027")
body.addObject(sketch28)
sketch28.AttachmentSupport = (doc.XY_Plane, [""])
sketch28.MapMode = "FlatFace"
sketch28.AttachmentOffset = App.Placement(V(0, 0, 30), App.Rotation())
sketch28.addGeometry([
    Part.Circle(V(15.5, 15.5, 0), V(0, 0, 1), 3.3),
    Part.Circle(V(-15.5, 15.5, 0), V(0, 0, 1), 3.3),
    Part.Circle(V(15.5, -15.5, 0), V(0, 0, 1), 3.3),
    Part.Circle(V(-15.5, -15.5, 0), V(0, 0, 1), 3.3),
], False)
sketch28.addConstraint([
    Sketcher.Constraint("Equal", 0, 1),
    Sketcher.Constraint("Equal", 1, 2),
    Sketcher.Constraint("Equal", 2, 3),
    Sketcher.Constraint("Symmetric", 1, 3, 2, 3, -1, 1),
    Sketcher.Constraint("Symmetric", 0, 3, 3, 3, -1, 1),
    Sketcher.Constraint("Symmetric", 0, 3, 1, 3, -2),
    Sketcher.Constraint("Diameter", 0, Q("6.6 mm")),
    Sketcher.Constraint("DistanceX", 1, 3, 0, 3, Q("31 mm")),
    Sketcher.Constraint("DistanceY", 2, 3, 0, 3, Q("31 mm")),
])
sketch28.setExpression("Constraints[6]", "Params.sketch28_diameter")
pocket6 = doc.addObject("PartDesign::Pocket", "Pocket005")
body.addObject(pocket6)
pocket6.Profile = sketch28
pocket6.setExpression("Length", "Params.pocket6_length")
pocket6.Reversed = True

sketch29 = doc.addObject("Sketcher::SketchObject", "Sketch028")
body.addObject(sketch29)
sketch29.AttachmentSupport = (doc.XY_Plane, [""])
sketch29.MapMode = "FlatFace"
sketch29.AttachmentOffset = App.Placement(V(0, 0, 40), App.Rotation())
sketch29.addGeometry(Part.Circle(V(0, 0, 0), V(0, 0, 1), 11), False)
sketch29.addConstraint([
    Sketcher.Constraint("Coincident", 0, 3, -1, 1),
    Sketcher.Constraint("Diameter", 0, Q("22 mm")),
])
sketch29.setExpression("Constraints[1]", "Params.sketch29_diameter")
pocket7 = doc.addObject("PartDesign::Pocket", "Pocket006")
body.addObject(pocket7)
pocket7.Profile = sketch29
pocket7.setExpression("Length", "Params.pocket7_length")

doc.recompute()
